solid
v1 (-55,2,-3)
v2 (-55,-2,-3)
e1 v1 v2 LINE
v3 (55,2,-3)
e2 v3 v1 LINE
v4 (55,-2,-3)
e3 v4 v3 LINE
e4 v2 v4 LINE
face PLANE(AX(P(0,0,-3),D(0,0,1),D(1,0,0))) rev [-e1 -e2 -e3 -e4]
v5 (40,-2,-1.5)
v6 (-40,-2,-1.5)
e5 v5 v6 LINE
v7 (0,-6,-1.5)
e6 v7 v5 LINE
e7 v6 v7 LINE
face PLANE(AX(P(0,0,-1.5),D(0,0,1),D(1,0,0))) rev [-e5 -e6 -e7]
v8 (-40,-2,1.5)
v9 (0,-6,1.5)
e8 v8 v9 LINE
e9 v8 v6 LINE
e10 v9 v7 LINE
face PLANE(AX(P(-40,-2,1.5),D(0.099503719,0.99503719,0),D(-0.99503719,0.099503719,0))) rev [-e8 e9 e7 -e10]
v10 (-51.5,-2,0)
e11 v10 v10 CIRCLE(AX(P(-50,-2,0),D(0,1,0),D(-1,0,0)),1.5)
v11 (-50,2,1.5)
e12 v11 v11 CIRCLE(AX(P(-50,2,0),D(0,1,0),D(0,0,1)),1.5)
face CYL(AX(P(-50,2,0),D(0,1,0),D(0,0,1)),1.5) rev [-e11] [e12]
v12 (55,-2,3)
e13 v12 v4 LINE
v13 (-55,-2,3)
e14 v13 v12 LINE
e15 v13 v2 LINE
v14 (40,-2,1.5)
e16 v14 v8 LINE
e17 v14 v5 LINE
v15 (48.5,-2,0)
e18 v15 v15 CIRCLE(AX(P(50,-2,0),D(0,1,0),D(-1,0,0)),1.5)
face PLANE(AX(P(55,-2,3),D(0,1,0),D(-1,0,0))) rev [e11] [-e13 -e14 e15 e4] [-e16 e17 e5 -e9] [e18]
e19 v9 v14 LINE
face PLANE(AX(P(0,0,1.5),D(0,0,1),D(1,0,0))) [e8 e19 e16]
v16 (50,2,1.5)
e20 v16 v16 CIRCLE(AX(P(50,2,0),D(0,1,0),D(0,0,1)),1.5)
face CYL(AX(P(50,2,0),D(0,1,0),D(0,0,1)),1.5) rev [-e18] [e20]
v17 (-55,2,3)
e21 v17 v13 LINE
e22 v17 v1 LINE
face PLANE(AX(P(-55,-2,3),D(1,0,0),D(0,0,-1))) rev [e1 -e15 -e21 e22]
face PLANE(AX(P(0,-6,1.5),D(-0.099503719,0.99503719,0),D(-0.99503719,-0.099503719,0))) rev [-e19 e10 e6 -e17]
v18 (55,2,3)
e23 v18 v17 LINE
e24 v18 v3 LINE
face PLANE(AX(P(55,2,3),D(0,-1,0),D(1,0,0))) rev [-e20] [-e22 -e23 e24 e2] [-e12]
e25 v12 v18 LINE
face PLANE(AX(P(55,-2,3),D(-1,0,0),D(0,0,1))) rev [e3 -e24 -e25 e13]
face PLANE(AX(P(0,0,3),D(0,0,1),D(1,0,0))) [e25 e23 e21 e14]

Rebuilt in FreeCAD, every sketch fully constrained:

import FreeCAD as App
import Part
import Sketcher
from FreeCAD import Vector
Q = App.Units.Quantity


def add_polygon(sketch, points):
    """Adds a closed chain of lines whose ends are joined by coincident constraints."""
    first, n = sketch.GeometryCount, len(points)
    for a, b in zip(points, points[1:] + points[:1]):
        sketch.addGeometry(Part.LineSegment(App.Vector(*a, 0), App.Vector(*b, 0)), False)
    for i in range(n):
        sketch.addConstraint(Sketcher.Constraint("Coincident", first + i, 2, first + (i + 1) % n, 1))

doc = App.newDocument("Part")
body = doc.addObject("PartDesign::Body", "Body")

sketch1 = body.newObject("Sketcher::SketchObject", "Sketch")
sketch1.AttachmentSupport = (doc.getObject("XY_Plane"), [""])
sketch1.MapMode = "FlatFace"
add_polygon(sketch1, [(-55, 2), (-55, -2), (55, -2), (55, 2)])
sketch1.addConstraint([
    Sketcher.Constraint("Vertical", 0),
    Sketcher.Constraint("Horizontal", 1),
    Sketcher.Constraint("Vertical", 2),
    Sketcher.Constraint("Horizontal", 3),
    Sketcher.Constraint("Symmetric", 0, 2, 2, 2, -1, 1),
    Sketcher.Constraint("DistanceX", 1, 1, 1, 2, Q("110 mm")),
    Sketcher.Constraint("DistanceY", 0, 2, 0, 1, Q("4 mm")),
])
pad1 = body.newObject("PartDesign::Pad", "Pad")
pad1.Profile = sketch1
pad1.Length = 6
pad1.Midplane = True

sketch2 = body.newObject("Sketcher::SketchObject", "Sketch001")
sketch2.AttachmentSupport = (doc.getObject("XY_Plane"), [""])
sketch2.MapMode = "FlatFace"
add_polygon(sketch2, [(-40, -2), (0, -6), (40, -2)])
sketch2.addConstraint([
    Sketcher.Constraint("Horizontal", 2),
    Sketcher.Constraint("PointOnObject", 0, 2, -2),
    Sketcher.Constraint("Equal", 0, 1),
    Sketcher.Constraint("DistanceX", 2, 2, 2, 1, Q("80 mm")),
    Sketcher.Constraint("DistanceY", 0, 2, -1, 1, Q("6 mm")),
    Sketcher.Constraint("DistanceY", 1, 2, -1, 1, Q("2 mm")),
])
pad2 = body.newObject("PartDesign::Pad", "Pad001")
pad2.Profile = sketch2
pad2.Length = 3
pad2.Midplane = True

sketch3 = body.newObject("Sketcher::SketchObject", "Sketch002")
sketch3.AttachmentSupport = (doc.getObject("XZ_Plane"), [""])
sketch3.MapMode = "FlatFace"
sketch3.AttachmentOffset = App.Placement(Vector(0, 0, -2), App.Rotation())
sketch3.addGeometry([
    Part.Circle(Vector(-50, 0, 0), Vector(0, 0, 1), 1.5),
    Part.Circle(Vector(50, 0, 0), Vector(0, 0, 1), 1.5),
], False)
sketch3.addConstraint([
    Sketcher.Constraint("Equal", 0, 1),
    Sketcher.Constraint("Symmetric", 0, 3, 1, 3, -1, 1),
    Sketcher.Constraint("PointOnObject", 0, 3, -1),
    Sketcher.Constraint("Diameter", 0, Q("3 mm")),
    Sketcher.Constraint("DistanceX", 0, 3, -1, 1, Q("50 mm")),
])
doc.recompute()
hole = body.newObject("PartDesign::Hole", "Hole")
hole.Profile = sketch3
hole.ThreadType = "None"
hole.Diameter = 3
hole.DepthType = "ThroughAll"
hole.Reversed = True

doc.recompute()
